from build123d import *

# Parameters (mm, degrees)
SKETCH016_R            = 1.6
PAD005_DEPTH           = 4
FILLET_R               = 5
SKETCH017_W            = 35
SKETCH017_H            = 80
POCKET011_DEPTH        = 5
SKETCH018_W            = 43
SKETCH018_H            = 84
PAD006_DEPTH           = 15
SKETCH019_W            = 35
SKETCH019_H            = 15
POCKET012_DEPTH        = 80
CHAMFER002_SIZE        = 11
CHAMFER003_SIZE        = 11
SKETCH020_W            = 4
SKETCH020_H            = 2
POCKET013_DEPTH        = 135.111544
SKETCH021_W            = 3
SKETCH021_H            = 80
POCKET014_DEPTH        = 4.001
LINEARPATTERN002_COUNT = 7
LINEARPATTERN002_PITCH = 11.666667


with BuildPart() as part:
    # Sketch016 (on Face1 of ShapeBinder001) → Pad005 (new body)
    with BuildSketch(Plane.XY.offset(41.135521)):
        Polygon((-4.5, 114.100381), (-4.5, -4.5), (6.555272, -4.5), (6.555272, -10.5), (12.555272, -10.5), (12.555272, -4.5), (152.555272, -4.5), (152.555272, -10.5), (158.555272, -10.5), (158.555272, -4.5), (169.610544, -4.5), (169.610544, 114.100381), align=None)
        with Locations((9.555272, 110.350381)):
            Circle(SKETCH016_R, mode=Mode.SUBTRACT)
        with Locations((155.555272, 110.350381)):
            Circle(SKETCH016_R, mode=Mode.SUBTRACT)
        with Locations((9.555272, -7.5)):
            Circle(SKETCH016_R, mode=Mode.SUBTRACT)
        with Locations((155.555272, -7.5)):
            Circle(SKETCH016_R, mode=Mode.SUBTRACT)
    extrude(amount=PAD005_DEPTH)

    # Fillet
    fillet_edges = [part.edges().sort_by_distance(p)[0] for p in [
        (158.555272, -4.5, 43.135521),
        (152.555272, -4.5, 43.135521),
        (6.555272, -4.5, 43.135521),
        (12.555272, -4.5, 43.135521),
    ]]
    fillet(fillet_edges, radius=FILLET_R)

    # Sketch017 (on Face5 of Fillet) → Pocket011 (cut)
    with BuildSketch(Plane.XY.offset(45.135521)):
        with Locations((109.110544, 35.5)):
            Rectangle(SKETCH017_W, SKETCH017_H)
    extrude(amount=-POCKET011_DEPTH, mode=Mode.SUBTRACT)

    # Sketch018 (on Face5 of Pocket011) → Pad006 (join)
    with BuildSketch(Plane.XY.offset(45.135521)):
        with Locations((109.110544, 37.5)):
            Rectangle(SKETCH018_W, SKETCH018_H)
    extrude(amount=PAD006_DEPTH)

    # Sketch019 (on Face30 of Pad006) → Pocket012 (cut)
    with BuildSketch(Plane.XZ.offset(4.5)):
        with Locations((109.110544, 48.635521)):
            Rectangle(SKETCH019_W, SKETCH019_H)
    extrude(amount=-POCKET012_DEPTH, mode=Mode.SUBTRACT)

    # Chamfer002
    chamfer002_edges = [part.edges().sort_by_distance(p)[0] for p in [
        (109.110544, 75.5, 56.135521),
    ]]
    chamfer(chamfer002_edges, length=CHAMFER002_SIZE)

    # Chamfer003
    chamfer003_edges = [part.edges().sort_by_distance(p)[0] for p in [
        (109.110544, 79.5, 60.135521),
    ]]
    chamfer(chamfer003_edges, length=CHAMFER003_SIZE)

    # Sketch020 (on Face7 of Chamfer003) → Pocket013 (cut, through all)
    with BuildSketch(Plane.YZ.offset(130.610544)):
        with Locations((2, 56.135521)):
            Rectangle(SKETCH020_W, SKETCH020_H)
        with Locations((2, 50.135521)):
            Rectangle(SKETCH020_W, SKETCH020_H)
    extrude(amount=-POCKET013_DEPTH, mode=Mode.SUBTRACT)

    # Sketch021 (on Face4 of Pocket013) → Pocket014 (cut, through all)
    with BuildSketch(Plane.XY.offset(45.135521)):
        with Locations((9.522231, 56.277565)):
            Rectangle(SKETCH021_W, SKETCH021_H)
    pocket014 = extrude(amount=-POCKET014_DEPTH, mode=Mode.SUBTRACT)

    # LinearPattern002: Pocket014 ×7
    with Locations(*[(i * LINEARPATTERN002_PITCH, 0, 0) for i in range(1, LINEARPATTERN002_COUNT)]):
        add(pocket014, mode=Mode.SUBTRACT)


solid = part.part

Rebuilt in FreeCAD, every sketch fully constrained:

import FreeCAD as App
import Part
import Sketcher
from FreeCAD import Vector
Q = App.Units.Quantity


def edges_at(feature, points):
    """Names of the edges that pass closest to the given points."""
    edges = feature.Shape.Edges
    near = lambda p: min(range(len(edges)), key=lambda i: edges[i].distToShape(Part.Vertex(*p))[0])
    return sorted({f"Edge{near(p) + 1}" for p in points})

doc = App.newDocument("Part")
body = doc.addObject("PartDesign::Body", "Body")

sketch1 = body.newObject("Sketcher::SketchObject", "Sketch")
sketch1.AttachmentSupport = (doc.getObject("XY_Plane"), [""])
sketch1.MapMode = "FlatFace"
sketch1.AttachmentOffset = App.Placement(Vector(0, 0, 41.135521), App.Rotation())
sketch1.addGeometry([
    Part.LineSegment(Vector(-4.5, 114.1, 0), Vector(-4.5, -4.5, 0)),
    Part.LineSegment(Vector(-4.5, -4.5, 0), Vector(6.6, -4.5, 0)),
    Part.LineSegment(Vector(6.6, -4.5, 0), Vector(6.6, -10.5, 0)),
    Part.LineSegment(Vector(6.6, -10.5, 0), Vector(12.6, -10.5, 0)),
    Part.LineSegment(Vector(12.6, -10.5, 0), Vector(12.6, -4.5, 0)),
    Part.LineSegment(Vector(12.6, -4.5, 0), Vector(152.6, -4.5, 0)),
    Part.LineSegment(Vector(152.6, -4.5, 0), Vector(152.6, -10.5, 0)),
    Part.LineSegment(Vector(152.6, -10.5, 0), Vector(158.6, -10.5, 0)),
    Part.LineSegment(Vector(158.6, -10.5, 0), Vector(158.6, -4.5, 0)),
    Part.LineSegment(Vector(158.6, -4.5, 0), Vector(169.6, -4.5, 0)),
    Part.LineSegment(Vector(169.6, -4.5, 0), Vector(169.6, 114.1, 0)),
    Part.LineSegment(Vector(169.6, 114.1, 0), Vector(-4.5, 114.1, 0)),
    Part.Circle(Vector(9.6, -7.5, 0), Vector(0, 0, 1), 1.6),
    Part.Circle(Vector(155.6, -7.5, 0), Vector(0, 0, 1), 1.6),
    Part.Circle(Vector(9.6, 110.4, 0), Vector(0, 0, 1), 1.6),
    Part.Circle(Vector(155.6, 110.4, 0), Vector(0, 0, 1), 1.6),
], False)
sketch1.addConstraint([
    Sketcher.Constraint("Coincident", 0, 2, 1, 1),
    Sketcher.Constraint("Coincident", 1, 2, 2, 1),
    Sketcher.Constraint("Coincident", 2, 2, 3, 1),
    Sketcher.Constraint("Coincident", 3, 2, 4, 1),
    Sketcher.Constraint("Coincident", 4, 2, 5, 1),
    Sketcher.Constraint("Coincident", 5, 2, 6, 1),
    Sketcher.Constraint("Coincident", 6, 2, 7, 1),
    Sketcher.Constraint("Coincident", 7, 2, 8, 1),
    Sketcher.Constraint("Coincident", 8, 2, 9, 1),
    Sketcher.Constraint("Coincident", 9, 2, 10, 1),
    Sketcher.Constraint("Coincident", 10, 2, 11, 1),
    Sketcher.Constraint("Coincident", 11, 2, 0, 1),
    Sketcher.Constraint("Vertical", 0),
    Sketcher.Constraint("Horizontal", 1),
    Sketcher.Constraint("Vertical", 2),
    Sketcher.Constraint("Horizontal", 3),
    Sketcher.Constraint("Vertical", 4),
    Sketcher.Constraint("Horizontal", 5),
    Sketcher.Constraint("Vertical", 6),
    Sketcher.Constraint("Horizontal", 7),
    Sketcher.Constraint("Vertical", 8),
    Sketcher.Constraint("Horizontal", 9),
    Sketcher.Constraint("Vertical", 10),
    Sketcher.Constraint("Horizontal", 11),
    Sketcher.Constraint("Equal", 12, 13),
    Sketcher.Constraint("Equal", 13, 14),
    Sketcher.Constraint("Equal", 14, 15),
    Sketcher.Constraint("Horizontal", 12, 3, 13, 3),
    Sketcher.Constraint("Horizontal", 14, 3, 15, 3),
    Sketcher.Constraint("Horizontal", 1, 2, 4, 2),
    Sketcher.Constraint("Horizontal", 3, 2, 6, 2),
    Sketcher.Constraint("Horizontal", 5, 2, 8, 2),
    Sketcher.Constraint("Vertical", 12, 3, 14, 3),
    Sketcher.Constraint("Vertical", 13, 3, 15, 3),
    Sketcher.Constraint("Equal", 3, 7),
    Sketcher.Constraint("Equal", 1, 9),
    Sketcher.Constraint("Equal", 7, 2),
    Sketcher.Constraint("Diameter", 12, Q("3.2 mm")),
    Sketcher.Constraint("DistanceX", 3, 1, 3, 2, Q("6 mm")),
    Sketcher.Constraint("DistanceX", 5, 1, 5, 2, Q("140 mm")),
    Sketcher.Constraint("DistanceX", 12, 3, 13, 3, Q("146 mm")),
    Sketcher.Constraint("DistanceY", 12, 3, 0, 2, Q("3 mm")),
    Sketcher.Constraint("DistanceX", 1, 2, 12, 3, Q("3 mm")),
    Sketcher.Constraint("DistanceY", 12, 3, -1, 1, Q("7.5 mm")),
    Sketcher.Constraint("DistanceX", 0, 2, -1, 1, Q("4.5 mm")),
    Sketcher.Constraint("DistanceY", 15, 3, 10, 2, Q("3.75 mm")),
    Sketcher.Constraint("DistanceY", 0, 2, 0, 1, Q("118.600381 mm")),
    Sketcher.Constraint("DistanceX", 1, 1, 1, 2, Q("11.055272 mm")),
])
pad1 = body.newObject("PartDesign::Pad", "Pad")
pad1.Profile = sketch1
pad1.Length = 4
doc.recompute()

fillet = body.newObject("PartDesign::Fillet", "Fillet")
fillet.Base = (pad1, edges_at(pad1, [
    (158.555, -4.5, 43.136),
    (152.555, -4.5, 43.136),
    (6.555, -4.5, 43.136),
    (12.555, -4.5, 43.136),
]))
fillet.Radius = 5

sketch2 = body.newObject("Sketcher::SketchObject", "Sketch001")
sketch2.AttachmentSupport = (doc.getObject("XY_Plane"), [""])
sketch2.MapMode = "FlatFace"
sketch2.AttachmentOffset = App.Placement(Vector(0, 0, 45.135521), App.Rotation())
sketch2.addGeometry([
    Part.LineSegment(Vector(92, 76, 0), Vector(92, -4, 0)),
    Part.LineSegment(Vector(92, -4, 0), Vector(127, -4, 0)),
    Part.LineSegment(Vector(127, -4, 0), Vector(127, 76, 0)),
    Part.LineSegment(Vector(127, 76, 0), Vector(92, 76, 0)),
], False)
sketch2.addConstraint([
    Sketcher.Constraint("Coincident", 0, 2, 1, 1),
    Sketcher.Constraint("Coincident", 1, 2, 2, 1),
    Sketcher.Constraint("Coincident", 2, 2, 3, 1),
    Sketcher.Constraint("Coincident", 3, 2, 0, 1),
    Sketcher.Constraint("Vertical", 0),
    Sketcher.Constraint("Horizontal", 1),
    Sketcher.Constraint("Vertical", 2),
    Sketcher.Constraint("Horizontal", 3),
    Sketcher.Constraint("DistanceX", 1, 1, 1, 2, Q("35 mm")),
    Sketcher.Constraint("DistanceY", 0, 2, 0, 1, Q("80 mm")),
    Sketcher.Constraint("DistanceY", 0, 2, -1, 1, Q("4.5 mm")),
    Sketcher.Constraint("DistanceX", -1, 1, 0, 2, Q("91.610544 mm")),
])
pocket1 = body.newObject("PartDesign::Pocket", "Pocket")
pocket1.Profile = sketch2
pocket1.Length = 5

sketch3 = body.newObject("Sketcher::SketchObject", "Sketch002")
sketch3.AttachmentSupport = (doc.getObject("XY_Plane"), [""])
sketch3.MapMode = "FlatFace"
sketch3.AttachmentOffset = App.Placement(Vector(0, 0, 45.135521), App.Rotation())
sketch3.addGeometry([
    Part.LineSegment(Vector(88, 80, 0), Vector(88, -4, 0)),
    Part.LineSegment(Vector(88, -4, 0), Vector(131, -4, 0)),
    Part.LineSegment(Vector(131, -4, 0), Vector(131, 80, 0)),
    Part.LineSegment(Vector(131, 80, 0), Vector(88, 80, 0)),
], False)
sketch3.addConstraint([
    Sketcher.Constraint("Coincident", 0, 2, 1, 1),
    Sketcher.Constraint("Coincident", 1, 2, 2, 1),
    Sketcher.Constraint("Coincident", 2, 2, 3, 1),
    Sketcher.Constraint("Coincident", 3, 2, 0, 1),
    Sketcher.Constraint("Vertical", 0),
    Sketcher.Constraint("Horizontal", 1),
    Sketcher.Constraint("Vertical", 2),
    Sketcher.Constraint("Horizontal", 3),
    Sketcher.Constraint("DistanceX", 1, 1, 1, 2, Q("43 mm")),
    Sketcher.Constraint("DistanceY", 0, 2, 0, 1, Q("84 mm")),
    Sketcher.Constraint("DistanceY", 0, 2, -1, 1, Q("4.5 mm")),
    Sketcher.Constraint("DistanceX", -1, 1, 0, 2, Q("87.610544 mm")),
])
pad2 = body.newObject("PartDesign::Pad", "Pad001")
pad2.Profile = sketch3
pad2.Length = 15

sketch4 = body.newObject("Sketcher::SketchObject", "Sketch003")
sketch4.AttachmentSupport = (doc.getObject("XZ_Plane"), [""])
sketch4.MapMode = "FlatFace"
sketch4.AttachmentOffset = App.Placement(Vector(0, 0, 4.5), App.Rotation())
sketch4.addGeometry([
    Part.LineSegment(Vector(92, 56, 0), Vector(92, 41, 0)),
    Part.LineSegment(Vector(92, 41, 0), Vector(127, 41, 0)),
    Part.LineSegment(Vector(127, 41, 0), Vector(127, 56, 0)),
    Part.LineSegment(Vector(127, 56, 0), Vector(92, 56, 0)),
], False)
sketch4.addConstraint([
    Sketcher.Constraint("Coincident", 0, 2, 1, 1),
    Sketcher.Constraint("Coincident", 1, 2, 2, 1),
    Sketcher.Constraint("Coincident", 2, 2, 3, 1),
    Sketcher.Constraint("Coincident", 3, 2, 0, 1),
    Sketcher.Constraint("Vertical", 0),
    Sketcher.Constraint("Horizontal", 1),
    Sketcher.Constraint("Vertical", 2),
    Sketcher.Constraint("Horizontal", 3),
    Sketcher.Constraint("DistanceX", 1, 1, 1, 2, Q("35 mm")),
    Sketcher.Constraint("DistanceY", 0, 2, 0, 1, Q("15 mm")),
    Sketcher.Constraint("DistanceY", -1, 1, 0, 2, Q("41.135521 mm")),
    Sketcher.Constraint("DistanceX", -1, 1, 0, 2, Q("91.610544 mm")),
])
pocket2 = body.newObject("PartDesign::Pocket", "Pocket001")
pocket2.Profile = sketch4
pocket2.Length = 80
doc.recompute()

chamfer = body.newObject("PartDesign::Chamfer", "Chamfer")
chamfer.Base = (pocket2, edges_at(pocket2, [(109.111, 75.5, 56.136)]))
chamfer.Size = 11
doc.recompute()

chamfer2 = body.newObject("PartDesign::Chamfer", "Chamfer001")
chamfer2.Base = (chamfer, edges_at(chamfer, [(109.111, 79.5, 60.136)]))
chamfer2.Size = 11

sketch5 = body.newObject("Sketcher::SketchObject", "Sketch004")
sketch5.AttachmentSupport = (doc.getObject("YZ_Plane"), [""])
sketch5.MapMode = "FlatFace"
sketch5.AttachmentOffset = App.Placement(Vector(0, 0, 130.610544), App.Rotation())
sketch5.addGeometry([
    Part.LineSegment(Vector(0, 57.1, 0), Vector(0, 55.1, 0)),
    Part.LineSegment(Vector(0, 55.1, 0), Vector(4, 55.1, 0)),
    Part.LineSegment(Vector(4, 55.1, 0), Vector(4, 57.1, 0)),
    Part.LineSegment(Vector(4, 57.1, 0), Vector(0, 57.1, 0)),
    Part.LineSegment(Vector(0, 51.1, 0), Vector(0, 49.1, 0)),
    Part.LineSegment(Vector(0, 49.1, 0), Vector(4, 49.1, 0)),
    Part.LineSegment(Vector(4, 49.1, 0), Vector(4, 51.1, 0)),
    Part.LineSegment(Vector(4, 51.1, 0), Vector(0, 51.1, 0)),
], False)
sketch5.addConstraint([
    Sketcher.Constraint("Coincident", 0, 2, 1, 1),
    Sketcher.Constraint("Coincident", 1, 2, 2, 1),
    Sketcher.Constraint("Coincident", 2, 2, 3, 1),
    Sketcher.Constraint("Coincident", 3, 2, 0, 1),
    Sketcher.Constraint("Coincident", 4, 2, 5, 1),
    Sketcher.Constraint("Coincident", 5, 2, 6, 1),
    Sketcher.Constraint("Coincident", 6, 2, 7, 1),
    Sketcher.Constraint("Coincident", 7, 2, 4, 1),
    Sketcher.Constraint("Vertical", 0),
    Sketcher.Constraint("Horizontal", 1),
    Sketcher.Constraint("Vertical", 2),
    Sketcher.Constraint("Horizontal", 3),
    Sketcher.Constraint("Vertical", 4),
    Sketcher.Constraint("Horizontal", 5),
    Sketcher.Constraint("Vertical", 6),
    Sketcher.Constraint("Horizontal", 7),
    Sketcher.Constraint("PointOnObject", 0, 2, -2),
    Sketcher.Constraint("PointOnObject", 4, 2, -2),
    Sketcher.Constraint("Vertical", 2, 2, 5, 2),
    Sketcher.Constraint("Equal", 2, 4),
    Sketcher.Constraint("DistanceX", 1, 1, 1, 2, Q("4 mm")),
    Sketcher.Constraint("DistanceY", 0, 2, 0, 1, Q("2 mm")),
    Sketcher.Constraint("DistanceY", 4, 2, 0, 2, Q("6 mm")),
    Sketcher.Constraint("DistanceY", -1, 1, 0, 2, Q("55.135521 mm")),
])
pocket3 = body.newObject("PartDesign::Pocket", "Pocket002")
pocket3.Profile = sketch5
pocket3.Type = "ThroughAll"

sketch6 = body.newObject("Sketcher::SketchObject", "Sketch005")
sketch6.AttachmentSupport = (doc.getObject("XY_Plane"), [""])
sketch6.MapMode = "FlatFace"
sketch6.AttachmentOffset = App.Placement(Vector(0, 0, 45.135521), App.Rotation())
sketch6.addGeometry([
    Part.LineSegment(Vector(8, 96.3, 0), Vector(8, 16.3, 0)),
    Part.LineSegment(Vector(8, 16.3, 0), Vector(11, 16.3, 0)),
    Part.LineSegment(Vector(11, 16.3, 0), Vector(11, 96.3, 0)),
    Part.LineSegment(Vector(11, 96.3, 0), Vector(8, 96.3, 0)),
], False)
sketch6.addConstraint([
    Sketcher.Constraint("Coincident", 0, 2, 1, 1),
    Sketcher.Constraint("Coincident", 1, 2, 2, 1),
    Sketcher.Constraint("Coincident", 2, 2, 3, 1),
    Sketcher.Constraint("Coincident", 3, 2, 0, 1),
    Sketcher.Constraint("Vertical", 0),
    Sketcher.Constraint("Horizontal", 1),
    Sketcher.Constraint("Vertical", 2),
    Sketcher.Constraint("Horizontal", 3),
    Sketcher.Constraint("DistanceX", 1, 1, 1, 2, Q("3 mm")),
    Sketcher.Constraint("DistanceY", 0, 2, 0, 1, Q("80 mm")),
    Sketcher.Constraint("DistanceX", -1, 1, 0, 2, Q("8.022231 mm")),
    Sketcher.Constraint("DistanceY", -1, 1, 0, 2, Q("16.277565 mm")),
])
pocket4 = body.newObject("PartDesign::Pocket", "Pocket003")
pocket4.Profile = sketch6
pocket4.Type = "ThroughAll"
doc.recompute()

linearpattern = body.newObject("PartDesign::LinearPattern", "LinearPattern")
linearpattern.Originals = [pocket4]
linearpattern.Direction = (doc.getObject("X_Axis"), [""])
linearpattern.Mode = "offset"
linearpattern.Offset = 11.666667
linearpattern.Occurrences = 7
body.Tip = linearpattern

doc.recompute()
